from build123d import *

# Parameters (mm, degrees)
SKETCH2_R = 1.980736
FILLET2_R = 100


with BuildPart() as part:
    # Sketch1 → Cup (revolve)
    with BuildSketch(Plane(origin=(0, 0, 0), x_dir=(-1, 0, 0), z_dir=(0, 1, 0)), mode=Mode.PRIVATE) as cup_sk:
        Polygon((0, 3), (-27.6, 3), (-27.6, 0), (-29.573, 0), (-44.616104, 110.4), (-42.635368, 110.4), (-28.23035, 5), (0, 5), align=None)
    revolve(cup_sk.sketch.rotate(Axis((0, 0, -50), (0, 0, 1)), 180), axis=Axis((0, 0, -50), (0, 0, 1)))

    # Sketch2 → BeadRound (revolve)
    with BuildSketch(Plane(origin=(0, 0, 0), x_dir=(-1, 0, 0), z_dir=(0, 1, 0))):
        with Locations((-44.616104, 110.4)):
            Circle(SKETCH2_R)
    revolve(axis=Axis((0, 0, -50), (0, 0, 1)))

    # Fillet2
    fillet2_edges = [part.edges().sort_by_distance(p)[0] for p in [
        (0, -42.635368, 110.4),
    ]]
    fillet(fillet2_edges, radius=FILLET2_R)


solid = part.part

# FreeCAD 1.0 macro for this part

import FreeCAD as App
import Part
import Sketcher
Q = App.Units.Quantity


def edges_at(feature, points):
    """Names of the edges that pass closest to the given points."""
    edges = feature.Shape.Edges
    near = lambda p: min(range(len(edges)), key=lambda i: edges[i].distToShape(Part.Vertex(*p))[0])
    return sorted({f"Edge{near(p) + 1}" for p in points})

doc = App.newDocument("Part")
body = doc.addObject("PartDesign::Body", "Body")

sketch1 = body.newObject("Sketcher::SketchObject", "Sketch")
sketch1.AttachmentSupport = (doc.getObject("XZ_Plane"), [""])
sketch1.MapMode = "FlatFace"
sketch1.addGeometry(Part.LineSegment(App.Vector(27.6, 3, 0), App.Vector(0, 3, 0)), False)
sketch1.addGeometry(Part.LineSegment(App.Vector(0, 3, 0), App.Vector(0, 5, 0)), False)
sketch1.addGeometry(Part.LineSegment(App.Vector(0, 5, 0), App.Vector(28.23035, 5, 0)), False)
sketch1.addGeometry(Part.LineSegment(App.Vector(28.23035, 5, 0), App.Vector(42.635368, 110.4, 0)), False)
sketch1.addGeometry(Part.LineSegment(App.Vector(42.635368, 110.4, 0), App.Vector(44.616104, 110.4, 0)), False)
sketch1.addGeometry(Part.LineSegment(App.Vector(44.616104, 110.4, 0), App.Vector(29.573, 0, 0)), False)
sketch1.addGeometry(Part.LineSegment(App.Vector(29.573, 0, 0), App.Vector(27.6, 0, 0)), False)
sketch1.addGeometry(Part.LineSegment(App.Vector(27.6, 0, 0), App.Vector(27.6, 3, 0)), False)
sketch1.addConstraint(Sketcher.Constraint("Coincident", 0, 2, 1, 1))
sketch1.addConstraint(Sketcher.Constraint("Coincident", 1, 2, 2, 1))
sketch1.addConstraint(Sketcher.Constraint("Coincident", 2, 2, 3, 1))
sketch1.addConstraint(Sketcher.Constraint("Coincident", 3, 2, 4, 1))
sketch1.addConstraint(Sketcher.Constraint("Coincident", 4, 2, 5, 1))
sketch1.addConstraint(Sketcher.Constraint("Coincident", 5, 2, 6, 1))
sketch1.addConstraint(Sketcher.Constraint("Coincident", 6, 2, 7, 1))
sketch1.addConstraint(Sketcher.Constraint("Coincident", 7, 2, 0, 1))
sketch1.addConstraint(Sketcher.Constraint("Horizontal", 0))
sketch1.addConstraint(Sketcher.Constraint("Vertical", 1))
sketch1.addConstraint(Sketcher.Constraint("Horizontal", 2))
sketch1.addConstraint(Sketcher.Constraint("Horizontal", 4))
sketch1.addConstraint(Sketcher.Constraint("Horizontal", 6))
sketch1.addConstraint(Sketcher.Constraint("Vertical", 7))
sketch1.addConstraint(Sketcher.Constraint("PointOnObject", 0, 2, -2))
sketch1.addConstraint(Sketcher.Constraint("PointOnObject", 5, 2, -1))
sketch1.addConstraint(Sketcher.Constraint("DistanceY", 1, 1, 1, 2, Q("2 mm")))
sketch1.addConstraint(Sketcher.Constraint("DistanceY", 7, 1, 7, 2, Q("3 mm")))
sketch1.addConstraint(Sketcher.Constraint("DistanceX", 0, 2, 0, 1, Q("27.6 mm")))
sketch1.addConstraint(Sketcher.Constraint("DistanceY", -1, 1, 3, 2, Q("110.4 mm")))
sketch1.addConstraint(Sketcher.Constraint("DistanceX", 6, 2, 6, 1, Q("1.973 mm")))
sketch1.addConstraint(Sketcher.Constraint("DistanceX", 2, 1, 2, 2, Q("28.23035 mm")))
sketch1.addConstraint(Sketcher.Constraint("DistanceX", 4, 1, 4, 2, Q("1.980736 mm")))
sketch1.addConstraint(Sketcher.Constraint("Distance", 3, Q("106.379813 mm")))
revolution = body.newObject("PartDesign::Revolution", "Revolution")
revolution.Profile = sketch1
revolution.ReferenceAxis = (sketch1, ["V_Axis"])
revolution.Angle = 360

sketch2 = body.newObject("Sketcher::SketchObject", "Sketch001")
sketch2.AttachmentSupport = (doc.getObject("XZ_Plane"), [""])
sketch2.MapMode = "FlatFace"
sketch2.addGeometry(Part.Circle(App.Vector(44.616104, 110.4, 0), App.Vector(0, 0, 1), 1.980736), False)
sketch2.addConstraint(Sketcher.Constraint("DistanceY", -1, 1, 0, 3, Q("110.4 mm")))
sketch2.addConstraint(Sketcher.Constraint("Diameter", 0, Q("3.961472 mm")))
sketch2.addConstraint(Sketcher.Constraint("DistanceX", -1, 1, 0, 3, Q("44.616104 mm")))
revolution2 = body.newObject("PartDesign::Revolution", "Revolution001")
revolution2.Profile = sketch2
revolution2.ReferenceAxis = (sketch2, ["V_Axis"])
revolution2.Angle = 360
doc.recompute()

fillet = body.newObject("PartDesign::Fillet", "Fillet")
fillet.Base = (revolution2, edges_at(revolution2, [(0, -42.635, 110.4)]))
fillet.Radius = 100

doc.recompute()
